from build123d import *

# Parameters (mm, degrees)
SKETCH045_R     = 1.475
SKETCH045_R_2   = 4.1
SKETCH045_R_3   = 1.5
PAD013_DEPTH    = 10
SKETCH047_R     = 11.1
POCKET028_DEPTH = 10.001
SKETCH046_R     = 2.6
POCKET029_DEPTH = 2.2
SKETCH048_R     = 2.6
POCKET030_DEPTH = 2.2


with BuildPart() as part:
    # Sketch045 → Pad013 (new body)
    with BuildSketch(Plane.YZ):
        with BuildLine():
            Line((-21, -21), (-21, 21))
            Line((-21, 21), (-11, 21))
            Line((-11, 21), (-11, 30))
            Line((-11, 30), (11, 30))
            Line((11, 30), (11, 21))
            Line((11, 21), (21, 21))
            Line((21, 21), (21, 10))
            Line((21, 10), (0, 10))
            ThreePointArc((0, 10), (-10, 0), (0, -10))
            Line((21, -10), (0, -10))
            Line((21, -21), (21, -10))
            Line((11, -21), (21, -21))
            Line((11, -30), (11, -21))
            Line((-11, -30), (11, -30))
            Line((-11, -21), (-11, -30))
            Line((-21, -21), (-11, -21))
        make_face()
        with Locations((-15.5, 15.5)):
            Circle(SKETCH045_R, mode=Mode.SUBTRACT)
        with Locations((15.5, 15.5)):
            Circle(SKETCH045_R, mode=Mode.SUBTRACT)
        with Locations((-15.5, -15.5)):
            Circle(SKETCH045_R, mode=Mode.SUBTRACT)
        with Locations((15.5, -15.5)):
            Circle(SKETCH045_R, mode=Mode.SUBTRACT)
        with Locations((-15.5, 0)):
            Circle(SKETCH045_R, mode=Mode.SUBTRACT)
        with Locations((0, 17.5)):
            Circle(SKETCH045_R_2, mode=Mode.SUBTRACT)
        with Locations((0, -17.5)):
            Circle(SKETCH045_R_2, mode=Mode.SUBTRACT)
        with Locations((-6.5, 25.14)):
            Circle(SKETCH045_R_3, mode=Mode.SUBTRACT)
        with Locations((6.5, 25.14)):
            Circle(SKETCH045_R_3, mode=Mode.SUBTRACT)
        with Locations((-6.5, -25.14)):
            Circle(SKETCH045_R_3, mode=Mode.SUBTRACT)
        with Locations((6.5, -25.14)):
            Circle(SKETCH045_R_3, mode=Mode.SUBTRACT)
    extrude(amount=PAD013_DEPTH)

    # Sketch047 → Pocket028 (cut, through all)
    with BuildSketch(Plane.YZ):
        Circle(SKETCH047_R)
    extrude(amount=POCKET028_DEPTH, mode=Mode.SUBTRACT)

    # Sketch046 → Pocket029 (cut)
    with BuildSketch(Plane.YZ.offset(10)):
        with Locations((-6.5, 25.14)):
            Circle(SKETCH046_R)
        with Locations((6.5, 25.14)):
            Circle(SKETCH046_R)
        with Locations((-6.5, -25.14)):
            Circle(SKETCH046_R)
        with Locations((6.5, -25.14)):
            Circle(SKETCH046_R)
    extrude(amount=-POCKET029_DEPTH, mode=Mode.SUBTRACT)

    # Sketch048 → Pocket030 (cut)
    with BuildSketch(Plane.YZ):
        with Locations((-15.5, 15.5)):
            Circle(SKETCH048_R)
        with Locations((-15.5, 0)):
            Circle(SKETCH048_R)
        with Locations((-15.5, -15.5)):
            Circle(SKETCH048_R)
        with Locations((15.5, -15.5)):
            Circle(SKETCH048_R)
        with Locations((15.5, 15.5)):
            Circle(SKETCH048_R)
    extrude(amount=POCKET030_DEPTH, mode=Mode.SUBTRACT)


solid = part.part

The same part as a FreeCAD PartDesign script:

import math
import FreeCAD as App
import Part
import Sketcher

V = App.Vector
Q = App.Units.Quantity

doc = App.newDocument("Part")
body = doc.addObject("PartDesign::Body", "Body")

sketch1 = body.newObject("Sketcher::SketchObject", "Sketch")
sketch1.AttachmentSupport = (doc.getObject("YZ_Plane"), [""])
sketch1.MapMode = "FlatFace"
sketch1.addGeometry([
    Part.LineSegment(V(-21, 21, 0), V(-21, -21, 0)),
    Part.LineSegment(V(-21, -21, 0), V(-11, -21, 0)),
    Part.LineSegment(V(-11, -21, 0), V(-11, -30, 0)),
    Part.LineSegment(V(-11, -30, 0), V(11, -30, 0)),
    Part.LineSegment(V(11, -30, 0), V(11, -21, 0)),
    Part.LineSegment(V(11, -21, 0), V(21, -21, 0)),
    Part.LineSegment(V(21, -21, 0), V(21, -10, 0)),
    Part.LineSegment(V(21, -10, 0), V(0, -10, 0)),
    Part.ArcOfCircle(Part.Circle(V(0, 0, 0), V(0, 0, 1), 10), math.radians(90), math.radians(270)),
    Part.LineSegment(V(0, 10, 0), V(21, 10, 0)),
    Part.LineSegment(V(21, 10, 0), V(21, 21, 0)),
    Part.LineSegment(V(21, 21, 0), V(11, 21, 0)),
    Part.LineSegment(V(11, 21, 0), V(11, 30, 0)),
    Part.LineSegment(V(11, 30, 0), V(-11, 30, 0)),
    Part.LineSegment(V(-11, 30, 0), V(-11, 21, 0)),
    Part.LineSegment(V(-11, 21, 0), V(-21, 21, 0)),
    Part.Circle(V(15.5, -15.5, 0), V(0, 0, 1), 1.5),
    Part.Circle(V(6.5, -25.1, 0), V(0, 0, 1), 1.5),
    Part.Circle(V(-6.5, -25.1, 0), V(0, 0, 1), 1.5),
    Part.Circle(V(0, -17.5, 0), V(0, 0, 1), 4.1),
    Part.Circle(V(-15.5, -15.5, 0), V(0, 0, 1), 1.5),
    Part.Circle(V(15.5, 15.5, 0), V(0, 0, 1), 1.5),
    Part.Circle(V(6.5, 25.1, 0), V(0, 0, 1), 1.5),
    Part.Circle(V(-15.5, 0, 0), V(0, 0, 1), 1.5),
    Part.Circle(V(0, 17.5, 0), V(0, 0, 1), 4.1),
    Part.Circle(V(-6.5, 25.1, 0), V(0, 0, 1), 1.5),
    Part.Circle(V(-15.5, 15.5, 0), V(0, 0, 1), 1.5),
], False)
sketch1.addConstraint([
    Sketcher.Constraint("Coincident", 0, 2, 1, 1),
    Sketcher.Constraint("Coincident", 1, 2, 2, 1),
    Sketcher.Constraint("Coincident", 2, 2, 3, 1),
    Sketcher.Constraint("Coincident", 3, 2, 4, 1),
    Sketcher.Constraint("Coincident", 4, 2, 5, 1),
    Sketcher.Constraint("Coincident", 5, 2, 6, 1),
    Sketcher.Constraint("Coincident", 6, 2, 7, 1),
    Sketcher.Constraint("Tangent", 7, 2, 8, 2),
    Sketcher.Constraint("Tangent", 8, 1, 9, 1),
    Sketcher.Constraint("Coincident", 9, 2, 10, 1),
    Sketcher.Constraint("Coincident", 10, 2, 11, 1),
    Sketcher.Constraint("Coincident", 11, 2, 12, 1),
    Sketcher.Constraint("Coincident", 12, 2, 13, 1),
    Sketcher.Constraint("Coincident", 13, 2, 14, 1),
    Sketcher.Constraint("Coincident", 14, 2, 15, 1),
    Sketcher.Constraint("Coincident", 15, 2, 0, 1),
    Sketcher.Constraint("Vertical", 0),
    Sketcher.Constraint("Horizontal", 1),
    Sketcher.Constraint("Vertical", 2),
    Sketcher.Constraint("Horizontal", 3),
    Sketcher.Constraint("Vertical", 4),
    Sketcher.Constraint("Horizontal", 5),
    Sketcher.Constraint("Vertical", 6),
    Sketcher.Constraint("Horizontal", 7),
    Sketcher.Constraint("Horizontal", 9),
    Sketcher.Constraint("Vertical", 10),
    Sketcher.Constraint("Horizontal", 11),
    Sketcher.Constraint("Vertical", 12),
    Sketcher.Constraint("Horizontal", 13),
    Sketcher.Constraint("Vertical", 14),
    Sketcher.Constraint("Horizontal", 15),
    Sketcher.Constraint("Coincident", 8, 3, -1, 1),
    Sketcher.Constraint("Equal", 17, 18),
    Sketcher.Constraint("Equal", 16, 20),
    Sketcher.Constraint("Equal", 20, 21),
    Sketcher.Constraint("Equal", 18, 22),
    Sketcher.Constraint("Equal", 21, 23),
    Sketcher.Constraint("Equal", 19, 24),
    Sketcher.Constraint("Equal", 22, 25),
    Sketcher.Constraint("Equal", 23, 26),
    Sketcher.Constraint("Symmetric", 20, 3, 21, 3, -1, 1),
    Sketcher.Constraint("Symmetric", 18, 3, 22, 3, -1, 1),
    Sketcher.Constraint("Symmetric", 19, 3, 24, 3, -1, 1),
    Sketcher.Constraint("Symmetric", 17, 3, 25, 3, -1, 1),
    Sketcher.Constraint("Symmetric", 16, 3, 26, 3, -1, 1),
    Sketcher.Constraint("Symmetric", 0, 2, 10, 2, -1, 1),
    Sketcher.Constraint("Symmetric", 2, 2, 12, 2, -1, 1),
    Sketcher.Constraint("Symmetric", 4, 2, 14, 2, -1, 1),
    Sketcher.Constraint("Symmetric", 17, 3, 18, 3, -2),
    Sketcher.Constraint("Symmetric", 16, 3, 20, 3, -2),
    Sketcher.Constraint("Symmetric", 1, 2, 4, 2, -2),
    Sketcher.Constraint("PointOnObject", 19, 3, -2),
    Sketcher.Constraint("PointOnObject", 23, 3, -1),
    Sketcher.Constraint("Vertical", 20, 3, 23, 3),
    Sketcher.Constraint("Vertical", 6, 2, 9, 2),
    Sketcher.Constraint("Diameter", 17, Q("3 mm")),
    Sketcher.Constraint("Radius", 8, Q("10 mm")),
    Sketcher.Constraint("Diameter", 19, Q("8.2 mm")),
    Sketcher.Constraint("Diameter", 16, Q("2.95 mm")),
    Sketcher.Constraint("DistanceX", 1, 1, 1, 2, Q("10 mm")),
    Sketcher.Constraint("DistanceX", 3, 1, 3, 2, Q("22 mm")),
    Sketcher.Constraint("DistanceY", 0, 2, 0, 1, Q("42 mm")),
    Sketcher.Constraint("DistanceY", 2, 2, 2, 1, Q("9 mm")),
    Sketcher.Constraint("DistanceX", 17, 3, 16, 3, Q("9 mm")),
    Sketcher.Constraint("DistanceX", 18, 3, 17, 3, Q("13 mm")),
    Sketcher.Constraint("DistanceY", 19, 3, 16, 3, Q("2 mm")),
    Sketcher.Constraint("DistanceY", 16, 3, 21, 3, Q("31 mm")),
    Sketcher.Constraint("DistanceY", 17, 3, -1, 1, Q("25.14 mm")),
])
pad1 = body.newObject("PartDesign::Pad", "Pad")
pad1.Profile = sketch1
pad1.Length = 10

sketch2 = body.newObject("Sketcher::SketchObject", "Sketch001")
sketch2.AttachmentSupport = (doc.getObject("YZ_Plane"), [""])
sketch2.MapMode = "FlatFace"
sketch2.addGeometry(Part.Circle(V(0, 0, 0), V(0, 0, 1), 11), False)
sketch2.addConstraint([
    Sketcher.Constraint("Coincident", 0, 3, -1, 1),
    Sketcher.Constraint("Diameter", 0, Q("22.2 mm")),
])
pocket1 = body.newObject("PartDesign::Pocket", "Pocket")
pocket1.Profile = sketch2
pocket1.Type = "ThroughAll"
pocket1.Reversed = True

sketch3 = body.newObject("Sketcher::SketchObject", "Sketch002")
sketch3.AttachmentSupport = (doc.getObject("YZ_Plane"), [""])
sketch3.MapMode = "FlatFace"
sketch3.AttachmentOffset = App.Placement(V(0, 0, 10), App.Rotation())
sketch3.addGeometry([
    Part.Circle(V(-6.5, 25.1, 0), V(0, 0, 1), 2.6),
    Part.Circle(V(6.5, 25.1, 0), V(0, 0, 1), 2.6),
    Part.Circle(V(-6.5, -25.1, 0), V(0, 0, 1), 2.6),
    Part.Circle(V(6.5, -25.1, 0), V(0, 0, 1), 2.6),
], False)
sketch3.addConstraint([
    Sketcher.Constraint("Equal", 0, 1),
    Sketcher.Constraint("Equal", 1, 2),
    Sketcher.Constraint("Equal", 2, 3),
    Sketcher.Constraint("Symmetric", 1, 3, 2, 3, -1, 1),
    Sketcher.Constraint("Symmetric", 0, 3, 3, 3, -1, 1),
    Sketcher.Constraint("Symmetric", 0, 3, 1, 3, -2),
    Sketcher.Constraint("Diameter", 0, Q("5.2 mm")),
    Sketcher.Constraint("DistanceX", 0, 3, 1, 3, Q("13 mm")),
    Sketcher.Constraint("DistanceY", -1, 1, 0, 3, Q("25.14 mm")),
])
pocket2 = body.newObject("PartDesign::Pocket", "Pocket001")
pocket2.Profile = sketch3
pocket2.Length = 2.2

sketch4 = body.newObject("Sketcher::SketchObject", "Sketch003")
sketch4.AttachmentSupport = (doc.getObject("YZ_Plane"), [""])
sketch4.MapMode = "FlatFace"
sketch4.addGeometry([
    Part.Circle(V(-15.5, 15.5, 0), V(0, 0, 1), 2.6),
    Part.Circle(V(-15.5, 0, 0), V(0, 0, 1), 2.6),
    Part.Circle(V(-15.5, -15.5, 0), V(0, 0, 1), 2.6),
    Part.Circle(V(15.5, -15.5, 0), V(0, 0, 1), 2.6),
    Part.Circle(V(15.5, 15.5, 0), V(0, 0, 1), 2.6),
], False)
sketch4.addConstraint([
    Sketcher.Constraint("Equal", 0, 1),
    Sketcher.Constraint("Equal", 1, 2),
    Sketcher.Constraint("Equal", 2, 3),
    Sketcher.Constraint("Equal", 3, 4),
    Sketcher.Constraint("Symmetric", 0, 3, 3, 3, -1, 1),
    Sketcher.Constraint("Symmetric", 2, 3, 4, 3, -1, 1),
    Sketcher.Constraint("Symmetric", 2, 3, 3, 3, -2),
    Sketcher.Constraint("PointOnObject", 1, 3, -1),
    Sketcher.Constraint("Vertical", 0, 3, 1, 3),
    Sketcher.Constraint("Diameter", 0, Q("5.2 mm")),
    Sketcher.Constraint("DistanceY", 2, 3, 0, 3, Q("31 mm")),
    Sketcher.Constraint("DistanceX", 2, 3, 3, 3, Q("31 mm")),
])
pocket3 = body.newObject("PartDesign::Pocket", "Pocket002")
pocket3.Profile = sketch4
pocket3.Length = 2.2
pocket3.Reversed = True

doc.recompute()
